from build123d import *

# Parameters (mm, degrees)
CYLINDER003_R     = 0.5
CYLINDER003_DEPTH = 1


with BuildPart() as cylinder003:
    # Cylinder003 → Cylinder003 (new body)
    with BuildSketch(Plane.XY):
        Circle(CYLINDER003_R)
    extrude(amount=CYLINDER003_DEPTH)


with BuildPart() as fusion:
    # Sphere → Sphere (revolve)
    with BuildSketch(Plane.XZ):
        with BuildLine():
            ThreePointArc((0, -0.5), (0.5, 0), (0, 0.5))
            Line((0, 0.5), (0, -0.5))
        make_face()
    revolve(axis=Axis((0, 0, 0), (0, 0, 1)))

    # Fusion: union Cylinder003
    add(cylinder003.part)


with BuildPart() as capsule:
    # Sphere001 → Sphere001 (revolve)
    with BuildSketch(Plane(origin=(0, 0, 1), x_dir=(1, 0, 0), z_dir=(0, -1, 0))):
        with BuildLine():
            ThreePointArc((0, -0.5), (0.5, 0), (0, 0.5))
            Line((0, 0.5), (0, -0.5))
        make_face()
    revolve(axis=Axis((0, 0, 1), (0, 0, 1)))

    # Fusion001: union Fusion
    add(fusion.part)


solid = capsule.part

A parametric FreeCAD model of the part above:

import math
import FreeCAD as App
import Part
import Sketcher

doc = App.newDocument("Part")
body = doc.addObject("PartDesign::Body", "Body")

# Sketch on XY plane
sketch1 = body.newObject("Sketcher::SketchObject", "Sketch")
sketch1.AttachmentSupport = (doc.getObject("XY_Plane"), [""])
sketch1.MapMode = "FlatFace"
sketch1.addGeometry(Part.Circle(App.Vector(0, 0, 0), App.Vector(0, 0, 1), 0.5), False)
sketch1.addConstraint([
    Sketcher.Constraint("Coincident", 0, 3, -1, 1),
    Sketcher.Constraint("Diameter", 0, 1.0),
])
pad1 = body.newObject("PartDesign::Pad", "Pad")
pad1.Profile = sketch1
pad1.Length = 1
body2 = doc.addObject("PartDesign::Body", "Body001")

# Sketch on XZ plane
sketch2 = body2.newObject("Sketcher::SketchObject", "Sketch001")
sketch2.AttachmentSupport = (doc.getObject("XZ_Plane001"), [""])
sketch2.MapMode = "FlatFace"
sketch2.addGeometry([
    Part.ArcOfCircle(Part.Circle(App.Vector(0, 0, 0), App.Vector(0, 0, 1), 0.5), math.radians(-90), math.radians(90)),
    Part.LineSegment(App.Vector(0, 0.5, 0), App.Vector(0, -0.5, 0)),
], False)
sketch2.addConstraint([
    Sketcher.Constraint("Coincident", 0, 1, 1, 2),
    Sketcher.Constraint("Coincident", 1, 1, 0, 2),
    Sketcher.Constraint("Vertical", 1),
    Sketcher.Constraint("Coincident", 0, 3, -1, 1),
    Sketcher.Constraint("PointOnObject", 0, 1, -2),
    Sketcher.Constraint("Radius", 0, 0.5),
])
revolution = body2.newObject("PartDesign::Revolution", "Revolution")
revolution.Profile = sketch2
revolution.ReferenceAxis = (sketch2, ["V_Axis"])
revolution.Angle = 360
doc.recompute()

boolean = body2.newObject("PartDesign::Boolean", "Boolean")
boolean.Type = "Fuse"
boolean.addObjects([body])
body3 = doc.addObject("PartDesign::Body", "Body002")

# Sketch on XZ plane
sketch3 = body3.newObject("Sketcher::SketchObject", "Sketch002")
sketch3.AttachmentSupport = (doc.getObject("XZ_Plane002"), [""])
sketch3.MapMode = "FlatFace"
sketch3.addGeometry([
    Part.ArcOfCircle(Part.Circle(App.Vector(0, 1, 0), App.Vector(0, 0, 1), 0.5), math.radians(-90), math.radians(90)),
    Part.LineSegment(App.Vector(0, 1.5, 0), App.Vector(0, 0.5, 0)),
], False)
sketch3.addConstraint([
    Sketcher.Constraint("Coincident", 0, 1, 1, 2),
    Sketcher.Constraint("Coincident", 1, 1, 0, 2),
    Sketcher.Constraint("Vertical", 1),
    Sketcher.Constraint("PointOnObject", 0, 3, -2),
    Sketcher.Constraint("PointOnObject", 0, 1, -2),
    Sketcher.Constraint("Radius", 0, 0.5),
    Sketcher.Constraint("DistanceY", -1, 1, 0, 3, 1.0),
])
revolution2 = body3.newObject("PartDesign::Revolution", "Revolution001")
revolution2.Profile = sketch3
revolution2.ReferenceAxis = (sketch3, ["V_Axis"])
revolution2.Angle = 360
doc.recompute()

boolean2 = body3.newObject("PartDesign::Boolean", "Boolean001")
boolean2.Type = "Fuse"
boolean2.addObjects([body2])

doc.recompute()
